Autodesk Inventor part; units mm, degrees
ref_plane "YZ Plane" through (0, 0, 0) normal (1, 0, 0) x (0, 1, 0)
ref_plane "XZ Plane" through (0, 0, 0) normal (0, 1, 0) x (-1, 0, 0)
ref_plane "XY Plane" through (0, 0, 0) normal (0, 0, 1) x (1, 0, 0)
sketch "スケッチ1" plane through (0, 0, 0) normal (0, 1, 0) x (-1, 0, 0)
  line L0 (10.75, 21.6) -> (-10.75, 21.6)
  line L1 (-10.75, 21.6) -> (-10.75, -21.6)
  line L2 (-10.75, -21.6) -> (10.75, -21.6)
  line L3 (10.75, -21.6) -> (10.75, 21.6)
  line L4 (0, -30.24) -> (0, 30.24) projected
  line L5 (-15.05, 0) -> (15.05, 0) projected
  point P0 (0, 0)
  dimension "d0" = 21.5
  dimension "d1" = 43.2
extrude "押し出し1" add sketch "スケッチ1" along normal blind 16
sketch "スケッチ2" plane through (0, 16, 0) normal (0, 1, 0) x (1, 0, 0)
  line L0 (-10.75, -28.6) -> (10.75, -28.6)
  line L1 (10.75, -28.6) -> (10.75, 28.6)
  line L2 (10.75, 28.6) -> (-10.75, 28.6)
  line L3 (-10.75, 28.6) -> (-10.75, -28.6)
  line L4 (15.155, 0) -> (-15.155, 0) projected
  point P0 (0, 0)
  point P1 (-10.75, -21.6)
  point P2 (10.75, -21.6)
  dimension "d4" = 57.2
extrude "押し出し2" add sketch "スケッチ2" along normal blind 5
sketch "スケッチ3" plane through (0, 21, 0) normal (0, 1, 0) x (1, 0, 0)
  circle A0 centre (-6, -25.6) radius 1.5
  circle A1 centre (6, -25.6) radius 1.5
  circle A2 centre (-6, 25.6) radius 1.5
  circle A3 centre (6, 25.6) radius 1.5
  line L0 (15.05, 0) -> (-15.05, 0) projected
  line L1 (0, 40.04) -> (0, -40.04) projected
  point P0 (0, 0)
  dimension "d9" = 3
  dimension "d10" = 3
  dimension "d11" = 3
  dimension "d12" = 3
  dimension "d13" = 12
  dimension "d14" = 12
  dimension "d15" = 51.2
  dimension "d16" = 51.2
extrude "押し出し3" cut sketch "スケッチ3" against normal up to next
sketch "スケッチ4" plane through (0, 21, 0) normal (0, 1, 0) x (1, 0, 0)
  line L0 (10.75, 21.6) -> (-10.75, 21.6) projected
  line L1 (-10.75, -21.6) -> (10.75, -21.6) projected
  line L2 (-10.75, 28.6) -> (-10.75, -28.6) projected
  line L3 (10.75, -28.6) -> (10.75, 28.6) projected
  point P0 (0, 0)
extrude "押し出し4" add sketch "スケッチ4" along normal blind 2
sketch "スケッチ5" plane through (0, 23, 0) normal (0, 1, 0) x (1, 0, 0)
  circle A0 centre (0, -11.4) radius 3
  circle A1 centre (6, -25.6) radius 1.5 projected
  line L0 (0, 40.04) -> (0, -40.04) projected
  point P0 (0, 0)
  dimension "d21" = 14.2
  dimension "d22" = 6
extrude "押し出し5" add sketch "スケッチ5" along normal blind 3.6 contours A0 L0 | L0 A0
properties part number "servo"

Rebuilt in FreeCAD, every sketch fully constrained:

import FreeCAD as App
import Part
import Sketcher
from FreeCAD import Vector
Q = App.Units.Quantity

doc = App.newDocument("Part")
body = doc.addObject("PartDesign::Body", "Body")

# Sketch on XZ plane
sketch1 = body.newObject("Sketcher::SketchObject", "Sketch")
sketch1.AttachmentSupport = (doc.getObject("XZ_Plane"), [""])
sketch1.MapMode = "FlatFace"
sketch1.addGeometry(Part.LineSegment(Vector(-11, 22, 0), Vector(11, 22, 0)), False)
sketch1.addGeometry(Part.LineSegment(Vector(11, 22, 0), Vector(11, -22, 0)), False)
sketch1.addGeometry(Part.LineSegment(Vector(11, -22, 0), Vector(-11, -22, 0)), False)
sketch1.addGeometry(Part.LineSegment(Vector(-11, -22, 0), Vector(-11, 22, 0)), False)
sketch1.addConstraint(Sketcher.Constraint("Coincident", 0, 2, 1, 1))
sketch1.addConstraint(Sketcher.Constraint("Coincident", 1, 2, 2, 1))
sketch1.addConstraint(Sketcher.Constraint("Coincident", 2, 2, 3, 1))
sketch1.addConstraint(Sketcher.Constraint("Coincident", 3, 2, 0, 1))
sketch1.addConstraint(Sketcher.Constraint("Horizontal", 0))
sketch1.addConstraint(Sketcher.Constraint("Vertical", 1))
sketch1.addConstraint(Sketcher.Constraint("Horizontal", 2))
sketch1.addConstraint(Sketcher.Constraint("Vertical", 3))
sketch1.addConstraint(Sketcher.Constraint("Symmetric", 0, 2, 2, 2, -1, 1))
sketch1.addConstraint(Sketcher.Constraint("DistanceX", 0, 1, 0, 2, Q("21.5 mm")))
sketch1.addConstraint(Sketcher.Constraint("DistanceY", 1, 2, 1, 1, Q("43.2 mm")))
pad1 = body.newObject("PartDesign::Pad", "Pad")
pad1.Profile = sketch1
pad1.Length = 16
pad1.Reversed = True

# Sketch on XZ plane
sketch2 = body.newObject("Sketcher::SketchObject", "Sketch001")
sketch2.AttachmentSupport = (doc.getObject("XZ_Plane"), [""])
sketch2.MapMode = "FlatFace"
sketch2.AttachmentOffset = App.Placement(Vector(0, 0, -16), App.Rotation())
sketch2.addGeometry(Part.LineSegment(Vector(-11, 29, 0), Vector(11, 29, 0)), False)
sketch2.addGeometry(Part.LineSegment(Vector(11, 29, 0), Vector(11, -29, 0)), False)
sketch2.addGeometry(Part.LineSegment(Vector(11, -29, 0), Vector(-11, -29, 0)), False)
sketch2.addGeometry(Part.LineSegment(Vector(-11, -29, 0), Vector(-11, 29, 0)), False)
sketch2.addConstraint(Sketcher.Constraint("Coincident", 0, 2, 1, 1))
sketch2.addConstraint(Sketcher.Constraint("Coincident", 1, 2, 2, 1))
sketch2.addConstraint(Sketcher.Constraint("Coincident", 2, 2, 3, 1))
sketch2.addConstraint(Sketcher.Constraint("Coincident", 3, 2, 0, 1))
sketch2.addConstraint(Sketcher.Constraint("Horizontal", 0))
sketch2.addConstraint(Sketcher.Constraint("Vertical", 1))
sketch2.addConstraint(Sketcher.Constraint("Horizontal", 2))
sketch2.addConstraint(Sketcher.Constraint("Vertical", 3))
sketch2.addConstraint(Sketcher.Constraint("Symmetric", 0, 2, 2, 2, -1, 1))
sketch2.addConstraint(Sketcher.Constraint("DistanceY", 1, 2, 1, 1, Q("57.2 mm")))
sketch2.addConstraint(Sketcher.Constraint("DistanceX", 0, 1, 0, 2, Q("21.5 mm")))
pad2 = body.newObject("PartDesign::Pad", "Pad001")
pad2.Profile = sketch2
pad2.Length = 5
pad2.Reversed = True

# Sketch on XZ plane
sketch3 = body.newObject("Sketcher::SketchObject", "Sketch002")
sketch3.AttachmentSupport = (doc.getObject("XZ_Plane"), [""])
sketch3.MapMode = "FlatFace"
sketch3.AttachmentOffset = App.Placement(Vector(0, 0, -21), App.Rotation())
sketch3.addGeometry(Part.Circle(Vector(-6, 25.6, 0), Vector(0, 0, 1), 1.5), False)
sketch3.addGeometry(Part.Circle(Vector(6, 25.6, 0), Vector(0, 0, 1), 1.5), False)
sketch3.addGeometry(Part.Circle(Vector(-6, -25.6, 0), Vector(0, 0, 1), 1.5), False)
sketch3.addGeometry(Part.Circle(Vector(6, -25.6, 0), Vector(0, 0, 1), 1.5), False)
sketch3.addConstraint(Sketcher.Constraint("Equal", 0, 1))
sketch3.addConstraint(Sketcher.Constraint("Equal", 1, 2))
sketch3.addConstraint(Sketcher.Constraint("Equal", 2, 3))
sketch3.addConstraint(Sketcher.Constraint("Symmetric", 1, 3, 2, 3, -1, 1))
sketch3.addConstraint(Sketcher.Constraint("Symmetric", 0, 3, 3, 3, -1, 1))
sketch3.addConstraint(Sketcher.Constraint("Symmetric", 0, 3, 1, 3, -2))
sketch3.addConstraint(Sketcher.Constraint("Diameter", 0, Q("3 mm")))
sketch3.addConstraint(Sketcher.Constraint("DistanceX", 0, 3, 1, 3, Q("12 mm")))
sketch3.addConstraint(Sketcher.Constraint("DistanceY", 2, 3, 0, 3, Q("51.2 mm")))
pocket1 = body.newObject("PartDesign::Pocket", "Pocket")
pocket1.Profile = sketch3
pocket1.Type = "UpToFirst"
pocket1.Reversed = True

# Sketch on XZ plane
sketch4 = body.newObject("Sketcher::SketchObject", "Sketch003")
sketch4.AttachmentSupport = (doc.getObject("XZ_Plane"), [""])
sketch4.MapMode = "FlatFace"
sketch4.AttachmentOffset = App.Placement(Vector(0, 0, -21), App.Rotation())
sketch4.addGeometry(Part.LineSegment(Vector(11, 22, 0), Vector(11, -22, 0)), False)
sketch4.addGeometry(Part.LineSegment(Vector(11, -22, 0), Vector(-11, -22, 0)), False)
sketch4.addGeometry(Part.LineSegment(Vector(-11, -22, 0), Vector(-11, 22, 0)), False)
sketch4.addGeometry(Part.LineSegment(Vector(-11, 22, 0), Vector(11, 22, 0)), False)
sketch4.addConstraint(Sketcher.Constraint("Coincident", 0, 2, 1, 1))
sketch4.addConstraint(Sketcher.Constraint("Coincident", 1, 2, 2, 1))
sketch4.addConstraint(Sketcher.Constraint("Coincident", 2, 2, 3, 1))
sketch4.addConstraint(Sketcher.Constraint("Coincident", 3, 2, 0, 1))
sketch4.addConstraint(Sketcher.Constraint("Vertical", 0))
sketch4.addConstraint(Sketcher.Constraint("Horizontal", 1))
sketch4.addConstraint(Sketcher.Constraint("Vertical", 2))
sketch4.addConstraint(Sketcher.Constraint("Horizontal", 3))
sketch4.addConstraint(Sketcher.Constraint("Symmetric", 0, 2, 2, 2, -1, 1))
sketch4.addConstraint(Sketcher.Constraint("DistanceX", 1, 2, 1, 1, Q("21.5 mm")))
sketch4.addConstraint(Sketcher.Constraint("DistanceY", 0, 2, 0, 1, Q("43.2 mm")))
pad3 = body.newObject("PartDesign::Pad", "Pad002")
pad3.Profile = sketch4
pad3.Length = 2
pad3.Reversed = True

# Sketch on XZ plane
sketch5 = body.newObject("Sketcher::SketchObject", "Sketch004")
sketch5.AttachmentSupport = (doc.getObject("XZ_Plane"), [""])
sketch5.MapMode = "FlatFace"
sketch5.AttachmentOffset = App.Placement(Vector(0, 0, -23), App.Rotation())
sketch5.addGeometry(Part.Circle(Vector(0, 11.4, 0), Vector(0, 0, 1), 3), False)
sketch5.addConstraint(Sketcher.Constraint("PointOnObject", 0, 3, -2))
sketch5.addConstraint(Sketcher.Constraint("Diameter", 0, Q("6 mm")))
sketch5.addConstraint(Sketcher.Constraint("DistanceY", -1, 1, 0, 3, Q("11.4 mm")))
pad4 = body.newObject("PartDesign::Pad", "Pad003")
pad4.Profile = sketch5
pad4.Length = 3.6
pad4.Reversed = True

doc.recompute()
